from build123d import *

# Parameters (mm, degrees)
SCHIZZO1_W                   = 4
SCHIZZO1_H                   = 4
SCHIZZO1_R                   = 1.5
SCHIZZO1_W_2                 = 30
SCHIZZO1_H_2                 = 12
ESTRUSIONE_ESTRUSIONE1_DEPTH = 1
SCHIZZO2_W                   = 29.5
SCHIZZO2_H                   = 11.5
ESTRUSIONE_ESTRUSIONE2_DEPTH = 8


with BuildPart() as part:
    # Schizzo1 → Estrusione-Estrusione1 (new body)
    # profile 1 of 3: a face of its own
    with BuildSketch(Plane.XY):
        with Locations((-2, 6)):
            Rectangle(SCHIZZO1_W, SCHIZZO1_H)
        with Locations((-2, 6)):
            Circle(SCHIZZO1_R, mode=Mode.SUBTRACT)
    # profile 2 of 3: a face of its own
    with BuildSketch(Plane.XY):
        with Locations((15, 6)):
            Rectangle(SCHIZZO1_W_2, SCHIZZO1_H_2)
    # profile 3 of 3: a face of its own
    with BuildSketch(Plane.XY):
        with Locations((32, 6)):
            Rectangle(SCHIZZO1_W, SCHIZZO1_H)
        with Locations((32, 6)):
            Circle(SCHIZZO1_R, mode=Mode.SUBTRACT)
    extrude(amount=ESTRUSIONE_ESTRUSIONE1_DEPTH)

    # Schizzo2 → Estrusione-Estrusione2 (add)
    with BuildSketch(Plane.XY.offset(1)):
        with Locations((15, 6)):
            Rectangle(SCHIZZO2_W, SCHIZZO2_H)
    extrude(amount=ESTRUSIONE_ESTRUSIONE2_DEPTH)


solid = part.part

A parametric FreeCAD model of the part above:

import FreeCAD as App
import Part
import Sketcher

V = App.Vector
Q = App.Units.Quantity

doc = App.newDocument("Part")
body = doc.addObject("PartDesign::Body", "Body")

sketch1 = doc.addObject("Sketcher::SketchObject", "Sketch")
body.addObject(sketch1)
sketch1.AttachmentSupport = (doc.XY_Plane, [""])
sketch1.MapMode = "FlatFace"
sketch1.addGeometry([
    Part.LineSegment(V(-4, 8, 0), V(-4, 4, 0)),
    Part.LineSegment(V(-4, 4, 0), V(0, 4, 0)),
    Part.LineSegment(V(0, 4, 0), V(0, 0, 0)),
    Part.LineSegment(V(0, 0, 0), V(30, 0, 0)),
    Part.LineSegment(V(30, 0, 0), V(30, 4, 0)),
    Part.LineSegment(V(30, 4, 0), V(34, 4, 0)),
    Part.LineSegment(V(34, 4, 0), V(34, 8, 0)),
    Part.LineSegment(V(34, 8, 0), V(30, 8, 0)),
    Part.LineSegment(V(30, 8, 0), V(30, 12, 0)),
    Part.LineSegment(V(30, 12, 0), V(0, 12, 0)),
    Part.LineSegment(V(0, 12, 0), V(0, 8, 0)),
    Part.LineSegment(V(0, 8, 0), V(-4, 8, 0)),
    Part.Circle(V(-2, 6, 0), V(0, 0, 1), 1.5),
    Part.Circle(V(32, 6, 0), V(0, 0, 1), 1.5),
], False)
sketch1.addConstraint([
    Sketcher.Constraint("Coincident", 0, 2, 1, 1),
    Sketcher.Constraint("Coincident", 1, 2, 2, 1),
    Sketcher.Constraint("Coincident", 2, 2, 3, 1),
    Sketcher.Constraint("Coincident", 3, 2, 4, 1),
    Sketcher.Constraint("Coincident", 4, 2, 5, 1),
    Sketcher.Constraint("Coincident", 5, 2, 6, 1),
    Sketcher.Constraint("Coincident", 6, 2, 7, 1),
    Sketcher.Constraint("Coincident", 7, 2, 8, 1),
    Sketcher.Constraint("Coincident", 8, 2, 9, 1),
    Sketcher.Constraint("Coincident", 9, 2, 10, 1),
    Sketcher.Constraint("Coincident", 10, 2, 11, 1),
    Sketcher.Constraint("Coincident", 11, 2, 0, 1),
    Sketcher.Constraint("Vertical", 0),
    Sketcher.Constraint("Horizontal", 1),
    Sketcher.Constraint("Vertical", 2),
    Sketcher.Constraint("Horizontal", 3),
    Sketcher.Constraint("Vertical", 4),
    Sketcher.Constraint("Horizontal", 5),
    Sketcher.Constraint("Vertical", 6),
    Sketcher.Constraint("Horizontal", 7),
    Sketcher.Constraint("Vertical", 8),
    Sketcher.Constraint("Horizontal", 9),
    Sketcher.Constraint("Vertical", 10),
    Sketcher.Constraint("Horizontal", 11),
    Sketcher.Constraint("Coincident", 2, 2, -1, 1),
    Sketcher.Constraint("Equal", 12, 13),
    Sketcher.Constraint("PointOnObject", 9, 2, -2),
    Sketcher.Constraint("Horizontal", 12, 3, 13, 3),
    Sketcher.Constraint("Horizontal", 1, 2, 4, 2),
    Sketcher.Constraint("Horizontal", 7, 2, 10, 2),
    Sketcher.Constraint("Vertical", 4, 2, 7, 2),
    Sketcher.Constraint("Equal", 1, 5),
    Sketcher.Constraint("Equal", 11, 0),
    Sketcher.Constraint("Equal", 0, 2),
    Sketcher.Constraint("Equal", 6, 8),
    Sketcher.Constraint("Diameter", 12, Q("3 mm")),
    Sketcher.Constraint("DistanceX", 1, 1, 1, 2, Q("4 mm")),
    Sketcher.Constraint("DistanceX", 3, 1, 3, 2, Q("30 mm")),
    Sketcher.Constraint("DistanceX", 12, 3, -1, 1, Q("2 mm")),
    Sketcher.Constraint("DistanceY", -1, 1, 12, 3, Q("6 mm")),
    Sketcher.Constraint("DistanceX", -1, 1, 13, 3, Q("32 mm")),
])
pad1 = doc.addObject("PartDesign::Pad", "Pad")
body.addObject(pad1)
pad1.Profile = sketch1
pad1.Length = 1

sketch2 = doc.addObject("Sketcher::SketchObject", "Sketch001")
body.addObject(sketch2)
sketch2.AttachmentSupport = (doc.XY_Plane, [""])
sketch2.MapMode = "FlatFace"
sketch2.AttachmentOffset = App.Placement(V(0, 0, 1), App.Rotation())
sketch2.addGeometry([
    Part.LineSegment(V(0.25, 11.75, 0), V(0.25, 0.25, 0)),
    Part.LineSegment(V(0.25, 0.25, 0), V(29.75, 0.25, 0)),
    Part.LineSegment(V(29.75, 0.25, 0), V(29.75, 11.75, 0)),
    Part.LineSegment(V(29.75, 11.75, 0), V(0.25, 11.75, 0)),
], False)
sketch2.addConstraint([
    Sketcher.Constraint("Coincident", 0, 2, 1, 1),
    Sketcher.Constraint("Coincident", 1, 2, 2, 1),
    Sketcher.Constraint("Coincident", 2, 2, 3, 1),
    Sketcher.Constraint("Coincident", 3, 2, 0, 1),
    Sketcher.Constraint("Vertical", 0),
    Sketcher.Constraint("Horizontal", 1),
    Sketcher.Constraint("Vertical", 2),
    Sketcher.Constraint("Horizontal", 3),
    Sketcher.Constraint("DistanceX", 1, 1, 1, 2, Q("29.5 mm")),
    Sketcher.Constraint("DistanceY", 0, 2, 0, 1, Q("11.5 mm")),
    Sketcher.Constraint("DistanceX", -1, 1, 0, 2, Q("0.25 mm")),
    Sketcher.Constraint("DistanceY", -1, 1, 0, 2, Q("0.25 mm")),
])
pad2 = doc.addObject("PartDesign::Pad", "Pad001")
body.addObject(pad2)
pad2.Profile = sketch2
pad2.Length = 8

doc.recompute()
